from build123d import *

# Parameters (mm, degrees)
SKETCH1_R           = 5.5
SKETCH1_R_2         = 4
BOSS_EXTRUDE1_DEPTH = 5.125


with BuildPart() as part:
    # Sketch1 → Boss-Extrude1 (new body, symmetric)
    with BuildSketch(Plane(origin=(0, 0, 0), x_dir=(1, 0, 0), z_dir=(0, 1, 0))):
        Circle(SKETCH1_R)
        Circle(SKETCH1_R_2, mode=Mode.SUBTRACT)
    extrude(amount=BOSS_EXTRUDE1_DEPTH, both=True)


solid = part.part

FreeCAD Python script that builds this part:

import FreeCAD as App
import Part
import Sketcher
from FreeCAD import Vector

doc = App.newDocument("Part")
body = doc.addObject("PartDesign::Body", "Body")

# Sketch on XZ plane
sketch1 = body.newObject("Sketcher::SketchObject", "Sketch")
sketch1.AttachmentSupport = (doc.getObject("XZ_Plane"), [""])
sketch1.MapMode = "FlatFace"
sketch1.addGeometry([
    Part.Circle(Vector(0, 0, 0), Vector(0, 0, 1), 5.5),
    Part.Circle(Vector(0, 0, 0), Vector(0, 0, 1), 4),
], False)
sketch1.addConstraint([
    Sketcher.Constraint("Coincident", 0, 3, -1, 1),
    Sketcher.Constraint("Coincident", 1, 3, -1, 1),
    Sketcher.Constraint("Diameter", 0, 11.0),
    Sketcher.Constraint("Diameter", 1, 8.0),
])
pad1 = body.newObject("PartDesign::Pad", "Pad")
pad1.Profile = sketch1
pad1.Length = 10.25
pad1.Midplane = True

doc.recompute()
